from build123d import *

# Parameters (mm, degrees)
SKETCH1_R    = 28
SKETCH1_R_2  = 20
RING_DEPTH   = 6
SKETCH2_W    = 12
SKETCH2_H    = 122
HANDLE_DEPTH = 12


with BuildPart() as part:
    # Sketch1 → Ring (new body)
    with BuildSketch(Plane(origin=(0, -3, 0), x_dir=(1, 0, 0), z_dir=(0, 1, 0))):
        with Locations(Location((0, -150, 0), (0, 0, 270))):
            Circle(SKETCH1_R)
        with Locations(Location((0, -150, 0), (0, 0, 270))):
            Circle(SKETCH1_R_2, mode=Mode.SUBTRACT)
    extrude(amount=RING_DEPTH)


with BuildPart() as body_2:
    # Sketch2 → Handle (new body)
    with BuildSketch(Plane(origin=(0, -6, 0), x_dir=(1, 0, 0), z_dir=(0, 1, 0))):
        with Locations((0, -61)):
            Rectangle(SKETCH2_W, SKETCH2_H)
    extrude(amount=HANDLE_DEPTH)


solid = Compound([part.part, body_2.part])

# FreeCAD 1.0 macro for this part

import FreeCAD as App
import Part
import Sketcher

V = App.Vector
Q = App.Units.Quantity


def add_polygon(sketch, points):
    """Adds a closed chain of lines whose ends are joined by coincident constraints."""
    first, n = sketch.GeometryCount, len(points)
    for a, b in zip(points, points[1:] + points[:1]):
        sketch.addGeometry(Part.LineSegment(App.Vector(*a, 0), App.Vector(*b, 0)), False)
    for i in range(n):
        sketch.addConstraint(Sketcher.Constraint("Coincident", first + i, 2, first + (i + 1) % n, 1))

doc = App.newDocument("Part")
body = doc.addObject("PartDesign::Body", "Body")

# Sketch on XZ plane
sketch1 = body.newObject("Sketcher::SketchObject", "Sketch")
sketch1.AttachmentSupport = (doc.getObject("XZ_Plane"), [""])
sketch1.MapMode = "FlatFace"
sketch1.AttachmentOffset = App.Placement(V(0, 0, 3), App.Rotation())
sketch1.addGeometry(Part.Circle(V(0, 150, 0), V(0, 0, 1), 28), False)
sketch1.addGeometry(Part.Circle(V(0, 150, 0), V(0, 0, 1), 20), False)
sketch1.addConstraint(Sketcher.Constraint("Coincident", 1, 3, 0, 3))
sketch1.addConstraint(Sketcher.Constraint("PointOnObject", 0, 3, -2))
sketch1.addConstraint(Sketcher.Constraint("Diameter", 0, Q("56 mm")))
sketch1.addConstraint(Sketcher.Constraint("Diameter", 1, Q("40 mm")))
sketch1.addConstraint(Sketcher.Constraint("DistanceY", -1, 1, 0, 3, Q("150 mm")))
pad1 = body.newObject("PartDesign::Pad", "Pad")
pad1.Profile = sketch1
pad1.Length = 6
pad1.Reversed = True
body2 = doc.addObject("PartDesign::Body", "Body001")

# Sketch on XZ plane
sketch2 = body2.newObject("Sketcher::SketchObject", "Sketch001")
sketch2.AttachmentSupport = (doc.getObject("XZ_Plane001"), [""])
sketch2.MapMode = "FlatFace"
sketch2.AttachmentOffset = App.Placement(V(0, 0, 6), App.Rotation())
add_polygon(sketch2, [(-6, 0), (-6, 122), (6, 122), (6, 0)])  # lines 0-3
sketch2.addConstraint(Sketcher.Constraint("Vertical", 0))
sketch2.addConstraint(Sketcher.Constraint("Horizontal", 1))
sketch2.addConstraint(Sketcher.Constraint("Vertical", 2))
sketch2.addConstraint(Sketcher.Constraint("Horizontal", 3))
sketch2.addConstraint(Sketcher.Constraint("Symmetric", 2, 2, 3, 2, -1, 1))
sketch2.addConstraint(Sketcher.Constraint("DistanceX", 1, 1, 1, 2, Q("12 mm")))
sketch2.addConstraint(Sketcher.Constraint("DistanceY", 0, 1, 0, 2, Q("122 mm")))
pad2 = body2.newObject("PartDesign::Pad", "Pad001")
pad2.Profile = sketch2
pad2.Length = 12
pad2.Reversed = True

doc.recompute()
